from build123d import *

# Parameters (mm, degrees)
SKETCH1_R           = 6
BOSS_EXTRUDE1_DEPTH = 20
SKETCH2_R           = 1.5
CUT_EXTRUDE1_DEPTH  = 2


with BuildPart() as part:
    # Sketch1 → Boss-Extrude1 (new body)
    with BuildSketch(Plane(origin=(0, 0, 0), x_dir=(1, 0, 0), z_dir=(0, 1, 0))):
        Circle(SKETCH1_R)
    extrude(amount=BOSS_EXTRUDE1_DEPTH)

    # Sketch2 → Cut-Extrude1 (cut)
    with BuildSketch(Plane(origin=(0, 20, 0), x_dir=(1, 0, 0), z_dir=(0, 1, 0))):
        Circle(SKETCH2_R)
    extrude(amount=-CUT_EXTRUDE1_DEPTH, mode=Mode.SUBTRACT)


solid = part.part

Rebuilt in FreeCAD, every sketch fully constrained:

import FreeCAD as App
import Part
import Sketcher
from FreeCAD import Vector

doc = App.newDocument("Part")
body = doc.addObject("PartDesign::Body", "Body")

sketch1 = body.newObject("Sketcher::SketchObject", "Sketch")
sketch1.AttachmentSupport = (doc.getObject("XZ_Plane"), [""])
sketch1.MapMode = "FlatFace"
sketch1.addGeometry(Part.Circle(Vector(0, 0, 0), Vector(0, 0, 1), 6), False)
sketch1.addConstraint([
    Sketcher.Constraint("Coincident", 0, 3, -1, 1),
    Sketcher.Constraint("Diameter", 0, 12.0),
])
pad1 = body.newObject("PartDesign::Pad", "Pad")
pad1.Profile = sketch1
pad1.Length = 20
pad1.Reversed = True

sketch2 = body.newObject("Sketcher::SketchObject", "Sketch001")
sketch2.AttachmentSupport = (doc.getObject("XZ_Plane"), [""])
sketch2.MapMode = "FlatFace"
sketch2.AttachmentOffset = App.Placement(Vector(0, 0, -20), App.Rotation())
sketch2.addGeometry(Part.Circle(Vector(0, 0, 0), Vector(0, 0, 1), 1.5), False)
sketch2.addConstraint([
    Sketcher.Constraint("Coincident", 0, 3, -1, 1),
    Sketcher.Constraint("Diameter", 0, 3.0),
])
pocket1 = body.newObject("PartDesign::Pocket", "Pocket")
pocket1.Profile = sketch2
pocket1.Length = 2
pocket1.Reversed = True

doc.recompute()
